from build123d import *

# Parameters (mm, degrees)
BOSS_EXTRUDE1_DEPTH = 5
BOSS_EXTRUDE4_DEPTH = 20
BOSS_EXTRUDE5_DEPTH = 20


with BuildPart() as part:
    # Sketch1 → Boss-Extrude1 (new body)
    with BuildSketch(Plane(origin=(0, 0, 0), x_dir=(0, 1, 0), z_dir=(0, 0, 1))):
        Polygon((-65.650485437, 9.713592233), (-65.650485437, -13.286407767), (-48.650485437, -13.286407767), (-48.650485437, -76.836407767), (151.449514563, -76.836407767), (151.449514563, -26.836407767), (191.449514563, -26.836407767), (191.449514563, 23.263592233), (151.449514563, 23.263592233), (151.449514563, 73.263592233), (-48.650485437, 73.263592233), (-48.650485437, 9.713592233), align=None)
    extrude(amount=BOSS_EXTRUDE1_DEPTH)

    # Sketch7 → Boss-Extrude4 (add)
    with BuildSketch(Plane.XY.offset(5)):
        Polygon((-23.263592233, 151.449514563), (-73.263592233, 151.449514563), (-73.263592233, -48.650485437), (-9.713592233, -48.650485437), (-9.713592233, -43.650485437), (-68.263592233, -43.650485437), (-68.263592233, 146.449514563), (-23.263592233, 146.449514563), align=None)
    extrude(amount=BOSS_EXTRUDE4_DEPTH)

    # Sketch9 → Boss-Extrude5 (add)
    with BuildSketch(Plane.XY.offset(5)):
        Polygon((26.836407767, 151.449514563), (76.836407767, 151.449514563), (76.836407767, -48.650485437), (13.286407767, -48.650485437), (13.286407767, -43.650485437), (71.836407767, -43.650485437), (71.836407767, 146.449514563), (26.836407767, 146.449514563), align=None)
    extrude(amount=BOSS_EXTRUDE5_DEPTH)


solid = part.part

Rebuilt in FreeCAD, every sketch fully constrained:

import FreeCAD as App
import Part
import Sketcher

V = App.Vector
Q = App.Units.Quantity


def add_polygon(sketch, points):
    """Adds a closed chain of lines whose ends are joined by coincident constraints."""
    first, n = sketch.GeometryCount, len(points)
    for a, b in zip(points, points[1:] + points[:1]):
        sketch.addGeometry(Part.LineSegment(App.Vector(*a, 0), App.Vector(*b, 0)), False)
    for i in range(n):
        sketch.addConstraint(Sketcher.Constraint("Coincident", first + i, 2, first + (i + 1) % n, 1))

doc = App.newDocument("Part")
body = doc.addObject("PartDesign::Body", "Body")

# Sketch on XY plane
sketch1 = body.newObject("Sketcher::SketchObject", "Sketch")
sketch1.AttachmentSupport = (doc.getObject("XY_Plane"), [""])
sketch1.MapMode = "FlatFace"
add_polygon(sketch1, [(-9.713592, -65.650485), (13.286408, -65.650485), (13.286408, -48.650485), (76.836408, -48.650485), (76.836408, 151.449515), (26.836408, 151.449515), (26.836408, 191.449515), (-23.263592, 191.449515), (-23.263592, 151.449515), (-73.263592, 151.449515), (-73.263592, -48.650485), (-9.713592, -48.650485)])  # lines 0-11
sketch1.addConstraint(Sketcher.Constraint("Horizontal", 0))
sketch1.addConstraint(Sketcher.Constraint("Vertical", 1))
sketch1.addConstraint(Sketcher.Constraint("Horizontal", 2))
sketch1.addConstraint(Sketcher.Constraint("Vertical", 3))
sketch1.addConstraint(Sketcher.Constraint("Horizontal", 4))
sketch1.addConstraint(Sketcher.Constraint("Vertical", 5))
sketch1.addConstraint(Sketcher.Constraint("Horizontal", 6))
sketch1.addConstraint(Sketcher.Constraint("Vertical", 7))
sketch1.addConstraint(Sketcher.Constraint("Horizontal", 8))
sketch1.addConstraint(Sketcher.Constraint("Vertical", 9))
sketch1.addConstraint(Sketcher.Constraint("Horizontal", 10))
sketch1.addConstraint(Sketcher.Constraint("Vertical", 11))
sketch1.addConstraint(Sketcher.Constraint("Horizontal", 4, 2, 7, 2))
sketch1.addConstraint(Sketcher.Constraint("Horizontal", 2, 2, 9, 2))
sketch1.addConstraint(Sketcher.Constraint("Equal", 4, 8))
sketch1.addConstraint(Sketcher.Constraint("Equal", 2, 10))
sketch1.addConstraint(Sketcher.Constraint("DistanceX", 0, 1, 0, 2, Q("23 mm")))
sketch1.addConstraint(Sketcher.Constraint("DistanceX", 4, 2, 4, 1, Q("50 mm")))
sketch1.addConstraint(Sketcher.Constraint("DistanceY", 1, 1, 1, 2, Q("17 mm")))
sketch1.addConstraint(Sketcher.Constraint("DistanceY", 5, 1, 5, 2, Q("40 mm")))
sketch1.addConstraint(Sketcher.Constraint("DistanceX", 6, 2, 6, 1, Q("50.1 mm")))
sketch1.addConstraint(Sketcher.Constraint("DistanceY", 3, 1, 3, 2, Q("200.1 mm")))
sketch1.addConstraint(Sketcher.Constraint("DistanceX", -1, 1, 0, 2, Q("13.286408 mm")))
sketch1.addConstraint(Sketcher.Constraint("DistanceY", 0, 2, -1, 1, Q("65.650485 mm")))
pad1 = body.newObject("PartDesign::Pad", "Pad")
pad1.Profile = sketch1
pad1.Length = 5

# Sketch on XY plane
sketch2 = body.newObject("Sketcher::SketchObject", "Sketch001")
sketch2.AttachmentSupport = (doc.getObject("XY_Plane"), [""])
sketch2.MapMode = "FlatFace"
sketch2.AttachmentOffset = App.Placement(V(0, 0, 5), App.Rotation())
add_polygon(sketch2, [(-23.263592, 151.449515), (-73.263592, 151.449515), (-73.263592, -48.650485), (-9.713592, -48.650485), (-9.713592, -43.650485), (-68.263592, -43.650485), (-68.263592, 146.449515), (-23.263592, 146.449515)])  # lines 0-7
sketch2.addConstraint(Sketcher.Constraint("Horizontal", 0))
sketch2.addConstraint(Sketcher.Constraint("Vertical", 1))
sketch2.addConstraint(Sketcher.Constraint("Horizontal", 2))
sketch2.addConstraint(Sketcher.Constraint("Vertical", 3))
sketch2.addConstraint(Sketcher.Constraint("Horizontal", 4))
sketch2.addConstraint(Sketcher.Constraint("Vertical", 5))
sketch2.addConstraint(Sketcher.Constraint("Horizontal", 6))
sketch2.addConstraint(Sketcher.Constraint("Vertical", 7))
sketch2.addConstraint(Sketcher.Constraint("Equal", 3, 7))
sketch2.addConstraint(Sketcher.Constraint("DistanceX", 0, 2, 0, 1, Q("50 mm")))
sketch2.addConstraint(Sketcher.Constraint("DistanceX", 6, 1, 6, 2, Q("45 mm")))
sketch2.addConstraint(Sketcher.Constraint("DistanceY", 3, 1, 3, 2, Q("5 mm")))
sketch2.addConstraint(Sketcher.Constraint("DistanceY", 1, 2, 1, 1, Q("200.1 mm")))
sketch2.addConstraint(Sketcher.Constraint("DistanceX", 2, 1, 2, 2, Q("63.55 mm")))
sketch2.addConstraint(Sketcher.Constraint("DistanceX", 0, 2, -1, 1, Q("73.263592 mm")))
sketch2.addConstraint(Sketcher.Constraint("DistanceY", -1, 1, 0, 2, Q("151.449515 mm")))
pad2 = body.newObject("PartDesign::Pad", "Pad001")
pad2.Profile = sketch2
pad2.Length = 20

# Sketch on XY plane
sketch3 = body.newObject("Sketcher::SketchObject", "Sketch002")
sketch3.AttachmentSupport = (doc.getObject("XY_Plane"), [""])
sketch3.MapMode = "FlatFace"
sketch3.AttachmentOffset = App.Placement(V(0, 0, 5), App.Rotation())
add_polygon(sketch3, [(76.836408, 151.449515), (26.836408, 151.449515), (26.836408, 146.449515), (71.836408, 146.449515), (71.836408, -43.650485), (13.286408, -43.650485), (13.286408, -48.650485), (76.836408, -48.650485)])  # lines 0-7
sketch3.addConstraint(Sketcher.Constraint("Horizontal", 0))
sketch3.addConstraint(Sketcher.Constraint("Vertical", 1))
sketch3.addConstraint(Sketcher.Constraint("Horizontal", 2))
sketch3.addConstraint(Sketcher.Constraint("Vertical", 3))
sketch3.addConstraint(Sketcher.Constraint("Horizontal", 4))
sketch3.addConstraint(Sketcher.Constraint("Vertical", 5))
sketch3.addConstraint(Sketcher.Constraint("Horizontal", 6))
sketch3.addConstraint(Sketcher.Constraint("Vertical", 7))
sketch3.addConstraint(Sketcher.Constraint("Equal", 1, 5))
sketch3.addConstraint(Sketcher.Constraint("DistanceX", 0, 2, 0, 1, Q("50 mm")))
sketch3.addConstraint(Sketcher.Constraint("DistanceX", 2, 1, 2, 2, Q("45 mm")))
sketch3.addConstraint(Sketcher.Constraint("DistanceY", 1, 2, 1, 1, Q("5 mm")))
sketch3.addConstraint(Sketcher.Constraint("DistanceY", 3, 2, 3, 1, Q("190.1 mm")))
sketch3.addConstraint(Sketcher.Constraint("DistanceX", 4, 2, 4, 1, Q("58.55 mm")))
sketch3.addConstraint(Sketcher.Constraint("DistanceX", -1, 1, 0, 2, Q("26.836408 mm")))
sketch3.addConstraint(Sketcher.Constraint("DistanceY", -1, 1, 0, 2, Q("151.449515 mm")))
pad3 = body.newObject("PartDesign::Pad", "Pad002")
pad3.Profile = sketch3
pad3.Length = 20

doc.recompute()
